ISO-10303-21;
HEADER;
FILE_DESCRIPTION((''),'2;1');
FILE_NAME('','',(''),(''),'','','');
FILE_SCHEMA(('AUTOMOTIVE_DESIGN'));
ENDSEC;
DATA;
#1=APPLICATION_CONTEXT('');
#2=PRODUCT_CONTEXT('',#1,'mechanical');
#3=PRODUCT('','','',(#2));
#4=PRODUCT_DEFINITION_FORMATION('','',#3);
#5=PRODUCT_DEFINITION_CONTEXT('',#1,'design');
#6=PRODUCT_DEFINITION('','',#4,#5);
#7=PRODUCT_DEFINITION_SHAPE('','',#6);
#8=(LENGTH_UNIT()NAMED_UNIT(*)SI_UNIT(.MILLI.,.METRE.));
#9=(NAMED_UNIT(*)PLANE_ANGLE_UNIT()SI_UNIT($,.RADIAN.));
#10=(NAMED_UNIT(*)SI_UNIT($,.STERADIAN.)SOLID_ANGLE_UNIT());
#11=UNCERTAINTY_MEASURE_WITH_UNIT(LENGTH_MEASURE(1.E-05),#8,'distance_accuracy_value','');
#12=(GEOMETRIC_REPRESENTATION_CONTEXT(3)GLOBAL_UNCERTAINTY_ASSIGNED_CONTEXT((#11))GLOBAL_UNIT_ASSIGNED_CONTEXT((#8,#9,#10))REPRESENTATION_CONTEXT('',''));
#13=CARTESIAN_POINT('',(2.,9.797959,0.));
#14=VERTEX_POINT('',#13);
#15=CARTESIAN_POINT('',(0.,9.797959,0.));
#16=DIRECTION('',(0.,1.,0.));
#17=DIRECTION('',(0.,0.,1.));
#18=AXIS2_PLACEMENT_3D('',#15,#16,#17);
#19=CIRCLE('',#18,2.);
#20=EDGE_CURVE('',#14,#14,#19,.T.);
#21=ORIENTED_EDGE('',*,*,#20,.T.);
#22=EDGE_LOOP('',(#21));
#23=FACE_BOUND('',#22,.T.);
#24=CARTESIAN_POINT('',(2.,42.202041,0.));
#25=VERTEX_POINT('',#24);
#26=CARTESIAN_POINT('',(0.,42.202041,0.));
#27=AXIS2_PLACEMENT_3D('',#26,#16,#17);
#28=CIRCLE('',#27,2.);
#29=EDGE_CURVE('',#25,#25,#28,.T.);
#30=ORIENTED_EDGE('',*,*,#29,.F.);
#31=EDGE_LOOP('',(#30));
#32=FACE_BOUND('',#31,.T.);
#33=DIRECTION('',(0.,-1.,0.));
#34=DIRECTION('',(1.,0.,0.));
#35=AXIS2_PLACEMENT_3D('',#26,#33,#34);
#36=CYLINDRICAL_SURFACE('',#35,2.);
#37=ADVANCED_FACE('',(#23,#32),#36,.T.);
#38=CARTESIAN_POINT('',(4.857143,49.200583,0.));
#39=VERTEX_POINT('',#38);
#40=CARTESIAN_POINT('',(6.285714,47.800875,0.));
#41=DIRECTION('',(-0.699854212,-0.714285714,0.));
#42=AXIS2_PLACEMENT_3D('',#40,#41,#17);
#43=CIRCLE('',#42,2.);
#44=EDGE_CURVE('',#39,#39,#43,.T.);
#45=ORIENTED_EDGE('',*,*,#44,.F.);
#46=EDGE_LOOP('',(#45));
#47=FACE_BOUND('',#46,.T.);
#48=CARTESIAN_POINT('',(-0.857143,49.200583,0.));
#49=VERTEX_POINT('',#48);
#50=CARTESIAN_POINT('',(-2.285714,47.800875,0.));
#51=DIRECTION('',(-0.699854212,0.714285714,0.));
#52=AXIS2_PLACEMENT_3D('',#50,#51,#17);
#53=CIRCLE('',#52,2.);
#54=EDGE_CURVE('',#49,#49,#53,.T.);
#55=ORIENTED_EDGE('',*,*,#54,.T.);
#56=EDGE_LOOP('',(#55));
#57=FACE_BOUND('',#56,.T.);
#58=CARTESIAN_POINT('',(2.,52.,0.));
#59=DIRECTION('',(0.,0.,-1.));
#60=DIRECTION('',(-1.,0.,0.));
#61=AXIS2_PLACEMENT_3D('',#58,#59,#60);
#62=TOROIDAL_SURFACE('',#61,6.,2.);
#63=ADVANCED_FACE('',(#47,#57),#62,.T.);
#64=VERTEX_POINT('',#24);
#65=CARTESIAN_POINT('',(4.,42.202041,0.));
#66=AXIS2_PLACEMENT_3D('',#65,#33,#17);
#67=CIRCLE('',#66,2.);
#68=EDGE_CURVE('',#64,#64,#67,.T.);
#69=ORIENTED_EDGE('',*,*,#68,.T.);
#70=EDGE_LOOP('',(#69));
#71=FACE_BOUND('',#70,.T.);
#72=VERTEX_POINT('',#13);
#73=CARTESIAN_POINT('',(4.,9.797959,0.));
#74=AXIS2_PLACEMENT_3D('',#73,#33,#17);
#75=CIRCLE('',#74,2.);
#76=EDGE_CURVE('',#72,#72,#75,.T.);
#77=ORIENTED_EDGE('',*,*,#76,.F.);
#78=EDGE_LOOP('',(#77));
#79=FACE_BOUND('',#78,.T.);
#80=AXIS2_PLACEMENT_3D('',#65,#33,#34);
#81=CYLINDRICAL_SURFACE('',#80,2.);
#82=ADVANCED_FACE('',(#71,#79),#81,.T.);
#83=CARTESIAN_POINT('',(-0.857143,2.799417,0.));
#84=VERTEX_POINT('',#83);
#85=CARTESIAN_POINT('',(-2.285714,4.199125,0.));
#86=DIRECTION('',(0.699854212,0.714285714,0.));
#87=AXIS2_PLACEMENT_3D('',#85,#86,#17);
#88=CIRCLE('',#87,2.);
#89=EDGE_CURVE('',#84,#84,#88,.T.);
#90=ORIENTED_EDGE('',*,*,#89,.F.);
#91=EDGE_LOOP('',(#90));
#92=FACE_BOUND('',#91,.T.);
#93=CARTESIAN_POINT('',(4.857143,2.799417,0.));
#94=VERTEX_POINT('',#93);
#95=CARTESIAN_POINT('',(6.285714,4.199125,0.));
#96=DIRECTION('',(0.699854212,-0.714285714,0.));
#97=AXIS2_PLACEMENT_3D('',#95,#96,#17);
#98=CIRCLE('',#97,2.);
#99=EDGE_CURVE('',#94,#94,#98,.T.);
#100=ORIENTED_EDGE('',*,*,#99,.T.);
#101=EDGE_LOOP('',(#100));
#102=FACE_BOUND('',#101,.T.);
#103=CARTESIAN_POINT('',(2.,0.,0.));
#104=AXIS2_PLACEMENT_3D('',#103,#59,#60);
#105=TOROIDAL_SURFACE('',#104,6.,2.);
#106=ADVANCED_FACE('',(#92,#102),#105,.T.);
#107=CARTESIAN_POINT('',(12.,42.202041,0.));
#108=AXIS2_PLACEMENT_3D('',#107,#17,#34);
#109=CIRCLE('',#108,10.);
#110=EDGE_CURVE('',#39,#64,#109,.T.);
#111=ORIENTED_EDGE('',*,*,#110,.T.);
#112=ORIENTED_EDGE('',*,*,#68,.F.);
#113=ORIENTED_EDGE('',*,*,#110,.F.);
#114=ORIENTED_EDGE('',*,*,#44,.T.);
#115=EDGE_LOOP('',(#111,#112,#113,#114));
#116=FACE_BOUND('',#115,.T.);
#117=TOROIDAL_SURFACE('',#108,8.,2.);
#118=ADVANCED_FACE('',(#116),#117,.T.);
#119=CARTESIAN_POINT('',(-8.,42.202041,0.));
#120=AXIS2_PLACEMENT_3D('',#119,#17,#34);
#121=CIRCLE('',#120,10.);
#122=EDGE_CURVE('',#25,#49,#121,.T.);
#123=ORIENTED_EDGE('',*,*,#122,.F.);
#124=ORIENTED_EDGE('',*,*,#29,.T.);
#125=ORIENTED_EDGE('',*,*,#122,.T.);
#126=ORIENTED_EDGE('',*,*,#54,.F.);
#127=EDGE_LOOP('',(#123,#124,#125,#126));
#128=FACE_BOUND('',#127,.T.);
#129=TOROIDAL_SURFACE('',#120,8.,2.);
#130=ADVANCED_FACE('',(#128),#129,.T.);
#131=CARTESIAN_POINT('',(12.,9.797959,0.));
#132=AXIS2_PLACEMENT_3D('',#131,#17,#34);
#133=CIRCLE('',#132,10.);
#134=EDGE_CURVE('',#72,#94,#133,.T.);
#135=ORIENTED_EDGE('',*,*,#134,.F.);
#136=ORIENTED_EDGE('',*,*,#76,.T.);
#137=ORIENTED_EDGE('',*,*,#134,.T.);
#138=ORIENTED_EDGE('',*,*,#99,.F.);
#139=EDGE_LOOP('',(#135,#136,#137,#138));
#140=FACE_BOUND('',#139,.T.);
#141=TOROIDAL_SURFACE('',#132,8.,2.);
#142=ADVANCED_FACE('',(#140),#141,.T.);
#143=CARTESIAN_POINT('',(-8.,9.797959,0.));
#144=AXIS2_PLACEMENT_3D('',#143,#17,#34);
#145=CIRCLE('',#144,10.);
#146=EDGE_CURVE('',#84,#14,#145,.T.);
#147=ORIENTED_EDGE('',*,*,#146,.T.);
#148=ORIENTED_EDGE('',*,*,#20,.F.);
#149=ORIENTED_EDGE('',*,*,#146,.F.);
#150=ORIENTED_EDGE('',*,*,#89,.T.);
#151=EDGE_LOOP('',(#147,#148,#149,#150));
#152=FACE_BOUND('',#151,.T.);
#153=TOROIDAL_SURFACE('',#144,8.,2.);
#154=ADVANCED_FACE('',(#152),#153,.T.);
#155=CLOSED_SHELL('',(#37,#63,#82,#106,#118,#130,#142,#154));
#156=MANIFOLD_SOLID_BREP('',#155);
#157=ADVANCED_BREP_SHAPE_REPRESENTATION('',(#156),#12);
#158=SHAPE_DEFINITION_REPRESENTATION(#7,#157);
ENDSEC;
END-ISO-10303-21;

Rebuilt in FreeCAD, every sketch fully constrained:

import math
import FreeCAD as App
import Part
import Sketcher
from FreeCAD import Vector
Q = App.Units.Quantity

doc = App.newDocument("Part")
body = doc.addObject("PartDesign::Body", "Body")

# Sketch on XZ plane
sketch1 = doc.addObject("Sketcher::SketchObject", "Sketch")
body.addObject(sketch1)
sketch1.AttachmentSupport = (doc.XZ_Plane, [""])
sketch1.MapMode = "FlatFace"
sketch1.AttachmentOffset = App.Placement(Vector(0, 0, -10), App.Rotation())
sketch1.addGeometry(Part.Circle(Vector(0, 0, 0), Vector(0, 0, 1), 2), False)
sketch1.addConstraint([
    Sketcher.Constraint("Coincident", 0, 3, -1, 1),
    Sketcher.Constraint("Diameter", 0, Q("4 mm")),
])

# Sketch on XY plane
sketch2 = doc.addObject("Sketcher::SketchObject", "Sketch001")
body.addObject(sketch2)
sketch2.AttachmentSupport = (doc.XY_Plane, [""])
sketch2.MapMode = "FlatFace"
sketch2.addGeometry([
    Part.LineSegment(Vector(4, 10, 0), Vector(4, 42, 0)),  # 0
    Part.ArcOfCircle(Part.Circle(Vector(12, 42, 0), Vector(0, 0, 1), 8), math.radians(136), math.radians(180)),  # 1
    Part.ArcOfCircle(Part.Circle(Vector(2, 52, 0), Vector(0, 0, 1), 6), math.radians(-44), math.radians(224)),  # 2
    Part.ArcOfCircle(Part.Circle(Vector(-8, 42, 0), Vector(0, 0, 1), 8), math.radians(0), math.radians(44)),  # 3
    Part.LineSegment(Vector(0, 42, 0), Vector(0, 10, 0)),  # 4
    Part.ArcOfCircle(Part.Circle(Vector(-8, 10, 0), Vector(0, 0, 1), 8), math.radians(-44), math.radians(0)),  # 5
    Part.ArcOfCircle(Part.Circle(Vector(2, 0, 0), Vector(0, 0, 1), 6), math.radians(136), math.radians(404)),  # 6
    Part.ArcOfCircle(Part.Circle(Vector(12, 10, 0), Vector(0, 0, 1), 8), math.radians(-180), math.radians(-136)),  # 7
], False)
sketch2.addConstraint([
    Sketcher.Constraint("Tangent", 0, 2, 1, 2),
    Sketcher.Constraint("Tangent", 1, 1, 2, 1),
    Sketcher.Constraint("Tangent", 2, 2, 3, 2),
    Sketcher.Constraint("Tangent", 3, 1, 4, 1),
    Sketcher.Constraint("Tangent", 4, 2, 5, 2),
    Sketcher.Constraint("Tangent", 5, 1, 6, 1),
    Sketcher.Constraint("Tangent", 6, 2, 7, 2),
    Sketcher.Constraint("Tangent", 7, 1, 0, 1),
    Sketcher.Constraint("Vertical", 0),
    Sketcher.Constraint("Vertical", 4),
    Sketcher.Constraint("Equal", 1, 3),
    Sketcher.Constraint("Equal", 3, 5),
    Sketcher.Constraint("Equal", 2, 6),
    Sketcher.Constraint("Equal", 5, 7),
    Sketcher.Constraint("PointOnObject", 6, 3, -1),
    Sketcher.Constraint("PointOnObject", 3, 1, -2),
    Sketcher.Constraint("Horizontal", 1, 3, 3, 3),
    Sketcher.Constraint("Horizontal", 5, 3, 7, 3),
    Sketcher.Constraint("Radius", 1, Q("8 mm")),
    Sketcher.Constraint("Radius", 2, Q("6 mm")),
    Sketcher.Constraint("DistanceX", -1, 1, 1, 3, Q("12 mm")),
    Sketcher.Constraint("DistanceY", -1, 1, 2, 3, Q("52 mm")),
])
doc.recompute()

additivepipe = doc.addObject("PartDesign::AdditivePipe", "AdditivePipe")
body.addObject(additivepipe)
additivepipe.Profile = sketch1
additivepipe.Spine = (sketch2, ["Edge1", "Edge2", "Edge3", "Edge4", "Edge5", "Edge6", "Edge7", "Edge8"])

doc.recompute()
